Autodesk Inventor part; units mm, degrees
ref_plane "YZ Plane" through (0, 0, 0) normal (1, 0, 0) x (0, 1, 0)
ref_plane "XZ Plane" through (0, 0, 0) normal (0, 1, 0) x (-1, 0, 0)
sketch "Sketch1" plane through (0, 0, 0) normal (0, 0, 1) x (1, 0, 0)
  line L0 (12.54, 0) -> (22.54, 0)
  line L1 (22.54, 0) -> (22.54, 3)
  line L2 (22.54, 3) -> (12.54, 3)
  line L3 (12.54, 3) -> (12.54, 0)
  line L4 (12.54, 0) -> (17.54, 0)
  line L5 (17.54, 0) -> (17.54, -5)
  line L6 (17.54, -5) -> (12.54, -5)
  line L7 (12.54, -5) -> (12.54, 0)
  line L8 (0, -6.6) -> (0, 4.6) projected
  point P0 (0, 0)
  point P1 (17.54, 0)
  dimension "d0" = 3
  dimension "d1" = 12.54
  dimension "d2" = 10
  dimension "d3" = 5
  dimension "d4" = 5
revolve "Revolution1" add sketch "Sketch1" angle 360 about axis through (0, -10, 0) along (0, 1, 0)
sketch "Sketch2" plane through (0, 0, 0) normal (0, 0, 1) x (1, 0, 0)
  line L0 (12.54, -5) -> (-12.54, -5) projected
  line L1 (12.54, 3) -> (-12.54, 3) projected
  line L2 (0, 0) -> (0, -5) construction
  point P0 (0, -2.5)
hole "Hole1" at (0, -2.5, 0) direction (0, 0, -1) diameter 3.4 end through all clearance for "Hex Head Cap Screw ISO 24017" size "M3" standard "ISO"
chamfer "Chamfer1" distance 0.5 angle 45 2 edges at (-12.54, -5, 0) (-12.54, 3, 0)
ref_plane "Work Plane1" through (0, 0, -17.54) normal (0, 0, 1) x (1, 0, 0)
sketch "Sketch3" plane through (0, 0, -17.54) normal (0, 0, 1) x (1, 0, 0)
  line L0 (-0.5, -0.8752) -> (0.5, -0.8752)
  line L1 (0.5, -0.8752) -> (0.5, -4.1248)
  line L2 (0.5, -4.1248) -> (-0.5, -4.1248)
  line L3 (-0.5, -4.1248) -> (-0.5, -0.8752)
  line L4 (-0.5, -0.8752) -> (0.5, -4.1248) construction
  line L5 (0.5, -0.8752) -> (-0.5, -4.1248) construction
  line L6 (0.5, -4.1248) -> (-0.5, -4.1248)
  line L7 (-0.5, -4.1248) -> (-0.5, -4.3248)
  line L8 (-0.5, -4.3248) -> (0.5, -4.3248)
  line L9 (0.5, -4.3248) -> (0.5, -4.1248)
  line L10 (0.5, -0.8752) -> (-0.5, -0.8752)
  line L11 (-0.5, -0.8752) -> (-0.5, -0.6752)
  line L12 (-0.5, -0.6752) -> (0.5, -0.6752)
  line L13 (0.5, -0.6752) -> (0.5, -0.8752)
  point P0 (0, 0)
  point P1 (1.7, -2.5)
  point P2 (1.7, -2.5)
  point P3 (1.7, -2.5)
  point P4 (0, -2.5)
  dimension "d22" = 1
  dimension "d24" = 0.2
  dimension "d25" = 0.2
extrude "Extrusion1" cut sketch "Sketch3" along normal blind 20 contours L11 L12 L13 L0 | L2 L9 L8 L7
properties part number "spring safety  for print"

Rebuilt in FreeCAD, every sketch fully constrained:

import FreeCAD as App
import Part
import Sketcher
Q = App.Units.Quantity


def edges_at(feature, points):
    """Names of the edges that pass closest to the given points."""
    edges = feature.Shape.Edges
    near = lambda p: min(range(len(edges)), key=lambda i: edges[i].distToShape(Part.Vertex(*p))[0])
    return sorted({f"Edge{near(p) + 1}" for p in points})


def add_polygon(sketch, points):
    """Adds a closed chain of lines whose ends are joined by coincident constraints."""
    first, n = sketch.GeometryCount, len(points)
    for a, b in zip(points, points[1:] + points[:1]):
        sketch.addGeometry(Part.LineSegment(App.Vector(*a, 0), App.Vector(*b, 0)), False)
    for i in range(n):
        sketch.addConstraint(Sketcher.Constraint("Coincident", first + i, 2, first + (i + 1) % n, 1))

doc = App.newDocument("Part")
params = doc.addObject("Spreadsheet::Sheet", "Params")
for row, (alias, value) in enumerate([
    ("sketch1_width", "5 mm"),
    ("sketch1_height", "3 mm"),
    ("revolution_angle", "360 deg"),
    ("sketch2_diameter", "3.4 mm"),
    ("hole_diameter", "3.4 mm"),
    ("chamfer_size", "0.5 mm"),
    ("sketch3_width", "1 mm"),
    ("sketch3_height", "0.2 mm"),
    ("pocket1_length", "20 mm"),
], start=1):
    params.set(f"A{row}", alias)
    params.set(f"B{row}", "=" + value)
    params.setAlias(f"B{row}", alias)

body = doc.addObject("PartDesign::Body", "Body")

# Sketch on XY plane
sketch1 = body.newObject("Sketcher::SketchObject", "Sketch")
sketch1.AttachmentSupport = (doc.getObject("XY_Plane"), [""])
sketch1.MapMode = "FlatFace"
add_polygon(sketch1, [(12.54, 3), (12.54, -5), (17.54, -5), (17.54, 0), (22.54, 0), (22.54, 3)])  # lines 0-5
sketch1.addConstraint(Sketcher.Constraint("Vertical", 0))
sketch1.addConstraint(Sketcher.Constraint("Horizontal", 1))
sketch1.addConstraint(Sketcher.Constraint("Vertical", 2))
sketch1.addConstraint(Sketcher.Constraint("Horizontal", 3))
sketch1.addConstraint(Sketcher.Constraint("Vertical", 4))
sketch1.addConstraint(Sketcher.Constraint("Horizontal", 5))
sketch1.addConstraint(Sketcher.Constraint("PointOnObject", 2, 2, -1))
sketch1.addConstraint(Sketcher.Constraint("Equal", 1, 3))
sketch1.addConstraint(Sketcher.Constraint("Equal", 3, 2))
sketch1.addConstraint(Sketcher.Constraint("DistanceX", 1, 1, 1, 2, Q("5 mm")))
sketch1.addConstraint(Sketcher.Constraint("DistanceY", 4, 1, 4, 2, Q("3 mm")))
sketch1.addConstraint(Sketcher.Constraint("DistanceX", -1, 1, 0, 2, Q("12.54 mm")))
sketch1.setExpression("Constraints[15]", "Params.sketch1_width")
sketch1.setExpression("Constraints[16]", "Params.sketch1_height")
revolution = body.newObject("PartDesign::Revolution", "Revolution")
revolution.Profile = sketch1
revolution.ReferenceAxis = (sketch1, ["V_Axis"])
revolution.setExpression("Angle", "Params.revolution_angle")

# Sketch on XY plane
sketch2 = body.newObject("Sketcher::SketchObject", "Sketch001")
sketch2.AttachmentSupport = (doc.getObject("XY_Plane"), [""])
sketch2.MapMode = "FlatFace"
sketch2.addGeometry(Part.Circle(App.Vector(0, -2.5, 0), App.Vector(0, 0, 1), 1.7), False)
sketch2.addConstraint(Sketcher.Constraint("PointOnObject", 0, 3, -2))
sketch2.addConstraint(Sketcher.Constraint("Diameter", 0, Q("3.4 mm")))
sketch2.addConstraint(Sketcher.Constraint("DistanceY", 0, 3, -1, 1, Q("2.5 mm")))
sketch2.setExpression("Constraints[1]", "Params.sketch2_diameter")
doc.recompute()
hole = body.newObject("PartDesign::Hole", "Hole")
hole.Profile = sketch2
hole.ThreadType = "None"
hole.setExpression("Diameter", "Params.hole_diameter")
hole.DepthType = "ThroughAll"
doc.recompute()

chamfer = body.newObject("PartDesign::Chamfer", "Chamfer")
chamfer.Base = (hole, edges_at(hole, [(-12.54, -5, 0), (-12.54, 3, 0)]))
chamfer.setExpression("Size", "Params.chamfer_size")

# Sketch on XY plane
sketch3 = body.newObject("Sketcher::SketchObject", "Sketch002")
sketch3.AttachmentSupport = (doc.getObject("XY_Plane"), [""])
sketch3.MapMode = "FlatFace"
sketch3.AttachmentOffset = App.Placement(App.Vector(0, 0, -17.54), App.Rotation())
add_polygon(sketch3, [(-0.5, -0.6752), (-0.5, -0.8752), (0.5, -0.8752), (0.5, -0.6752)])  # lines 0-3
add_polygon(sketch3, [(0.5, -4.1248), (-0.5, -4.1248), (-0.5, -4.3248), (0.5, -4.3248)])  # lines 4-7
sketch3.addConstraint(Sketcher.Constraint("Vertical", 0))
sketch3.addConstraint(Sketcher.Constraint("Horizontal", 1))
sketch3.addConstraint(Sketcher.Constraint("Vertical", 2))
sketch3.addConstraint(Sketcher.Constraint("Horizontal", 3))
sketch3.addConstraint(Sketcher.Constraint("Horizontal", 4))
sketch3.addConstraint(Sketcher.Constraint("Vertical", 5))
sketch3.addConstraint(Sketcher.Constraint("Horizontal", 6))
sketch3.addConstraint(Sketcher.Constraint("Vertical", 7))
sketch3.addConstraint(Sketcher.Constraint("Vertical", 3, 2, 4, 2))
sketch3.addConstraint(Sketcher.Constraint("Vertical", 2, 2, 6, 2))
sketch3.addConstraint(Sketcher.Constraint("Equal", 2, 5))
sketch3.addConstraint(Sketcher.Constraint("DistanceX", 1, 1, 1, 2, Q("1 mm")))
sketch3.addConstraint(Sketcher.Constraint("DistanceY", 0, 2, 0, 1, Q("0.2 mm")))
sketch3.addConstraint(Sketcher.Constraint("DistanceX", 0, 2, -1, 1, Q("0.5 mm")))
sketch3.addConstraint(Sketcher.Constraint("DistanceY", 0, 2, -1, 1, Q("0.8752 mm")))
sketch3.addConstraint(Sketcher.Constraint("DistanceY", 4, 2, -1, 1, Q("4.1248 mm")))
sketch3.setExpression("Constraints[19]", "Params.sketch3_width")
sketch3.setExpression("Constraints[20]", "Params.sketch3_height")
pocket1 = body.newObject("PartDesign::Pocket", "Pocket")
pocket1.Profile = sketch3
pocket1.setExpression("Length", "Params.pocket1_length")
pocket1.Reversed = True

doc.recompute()
